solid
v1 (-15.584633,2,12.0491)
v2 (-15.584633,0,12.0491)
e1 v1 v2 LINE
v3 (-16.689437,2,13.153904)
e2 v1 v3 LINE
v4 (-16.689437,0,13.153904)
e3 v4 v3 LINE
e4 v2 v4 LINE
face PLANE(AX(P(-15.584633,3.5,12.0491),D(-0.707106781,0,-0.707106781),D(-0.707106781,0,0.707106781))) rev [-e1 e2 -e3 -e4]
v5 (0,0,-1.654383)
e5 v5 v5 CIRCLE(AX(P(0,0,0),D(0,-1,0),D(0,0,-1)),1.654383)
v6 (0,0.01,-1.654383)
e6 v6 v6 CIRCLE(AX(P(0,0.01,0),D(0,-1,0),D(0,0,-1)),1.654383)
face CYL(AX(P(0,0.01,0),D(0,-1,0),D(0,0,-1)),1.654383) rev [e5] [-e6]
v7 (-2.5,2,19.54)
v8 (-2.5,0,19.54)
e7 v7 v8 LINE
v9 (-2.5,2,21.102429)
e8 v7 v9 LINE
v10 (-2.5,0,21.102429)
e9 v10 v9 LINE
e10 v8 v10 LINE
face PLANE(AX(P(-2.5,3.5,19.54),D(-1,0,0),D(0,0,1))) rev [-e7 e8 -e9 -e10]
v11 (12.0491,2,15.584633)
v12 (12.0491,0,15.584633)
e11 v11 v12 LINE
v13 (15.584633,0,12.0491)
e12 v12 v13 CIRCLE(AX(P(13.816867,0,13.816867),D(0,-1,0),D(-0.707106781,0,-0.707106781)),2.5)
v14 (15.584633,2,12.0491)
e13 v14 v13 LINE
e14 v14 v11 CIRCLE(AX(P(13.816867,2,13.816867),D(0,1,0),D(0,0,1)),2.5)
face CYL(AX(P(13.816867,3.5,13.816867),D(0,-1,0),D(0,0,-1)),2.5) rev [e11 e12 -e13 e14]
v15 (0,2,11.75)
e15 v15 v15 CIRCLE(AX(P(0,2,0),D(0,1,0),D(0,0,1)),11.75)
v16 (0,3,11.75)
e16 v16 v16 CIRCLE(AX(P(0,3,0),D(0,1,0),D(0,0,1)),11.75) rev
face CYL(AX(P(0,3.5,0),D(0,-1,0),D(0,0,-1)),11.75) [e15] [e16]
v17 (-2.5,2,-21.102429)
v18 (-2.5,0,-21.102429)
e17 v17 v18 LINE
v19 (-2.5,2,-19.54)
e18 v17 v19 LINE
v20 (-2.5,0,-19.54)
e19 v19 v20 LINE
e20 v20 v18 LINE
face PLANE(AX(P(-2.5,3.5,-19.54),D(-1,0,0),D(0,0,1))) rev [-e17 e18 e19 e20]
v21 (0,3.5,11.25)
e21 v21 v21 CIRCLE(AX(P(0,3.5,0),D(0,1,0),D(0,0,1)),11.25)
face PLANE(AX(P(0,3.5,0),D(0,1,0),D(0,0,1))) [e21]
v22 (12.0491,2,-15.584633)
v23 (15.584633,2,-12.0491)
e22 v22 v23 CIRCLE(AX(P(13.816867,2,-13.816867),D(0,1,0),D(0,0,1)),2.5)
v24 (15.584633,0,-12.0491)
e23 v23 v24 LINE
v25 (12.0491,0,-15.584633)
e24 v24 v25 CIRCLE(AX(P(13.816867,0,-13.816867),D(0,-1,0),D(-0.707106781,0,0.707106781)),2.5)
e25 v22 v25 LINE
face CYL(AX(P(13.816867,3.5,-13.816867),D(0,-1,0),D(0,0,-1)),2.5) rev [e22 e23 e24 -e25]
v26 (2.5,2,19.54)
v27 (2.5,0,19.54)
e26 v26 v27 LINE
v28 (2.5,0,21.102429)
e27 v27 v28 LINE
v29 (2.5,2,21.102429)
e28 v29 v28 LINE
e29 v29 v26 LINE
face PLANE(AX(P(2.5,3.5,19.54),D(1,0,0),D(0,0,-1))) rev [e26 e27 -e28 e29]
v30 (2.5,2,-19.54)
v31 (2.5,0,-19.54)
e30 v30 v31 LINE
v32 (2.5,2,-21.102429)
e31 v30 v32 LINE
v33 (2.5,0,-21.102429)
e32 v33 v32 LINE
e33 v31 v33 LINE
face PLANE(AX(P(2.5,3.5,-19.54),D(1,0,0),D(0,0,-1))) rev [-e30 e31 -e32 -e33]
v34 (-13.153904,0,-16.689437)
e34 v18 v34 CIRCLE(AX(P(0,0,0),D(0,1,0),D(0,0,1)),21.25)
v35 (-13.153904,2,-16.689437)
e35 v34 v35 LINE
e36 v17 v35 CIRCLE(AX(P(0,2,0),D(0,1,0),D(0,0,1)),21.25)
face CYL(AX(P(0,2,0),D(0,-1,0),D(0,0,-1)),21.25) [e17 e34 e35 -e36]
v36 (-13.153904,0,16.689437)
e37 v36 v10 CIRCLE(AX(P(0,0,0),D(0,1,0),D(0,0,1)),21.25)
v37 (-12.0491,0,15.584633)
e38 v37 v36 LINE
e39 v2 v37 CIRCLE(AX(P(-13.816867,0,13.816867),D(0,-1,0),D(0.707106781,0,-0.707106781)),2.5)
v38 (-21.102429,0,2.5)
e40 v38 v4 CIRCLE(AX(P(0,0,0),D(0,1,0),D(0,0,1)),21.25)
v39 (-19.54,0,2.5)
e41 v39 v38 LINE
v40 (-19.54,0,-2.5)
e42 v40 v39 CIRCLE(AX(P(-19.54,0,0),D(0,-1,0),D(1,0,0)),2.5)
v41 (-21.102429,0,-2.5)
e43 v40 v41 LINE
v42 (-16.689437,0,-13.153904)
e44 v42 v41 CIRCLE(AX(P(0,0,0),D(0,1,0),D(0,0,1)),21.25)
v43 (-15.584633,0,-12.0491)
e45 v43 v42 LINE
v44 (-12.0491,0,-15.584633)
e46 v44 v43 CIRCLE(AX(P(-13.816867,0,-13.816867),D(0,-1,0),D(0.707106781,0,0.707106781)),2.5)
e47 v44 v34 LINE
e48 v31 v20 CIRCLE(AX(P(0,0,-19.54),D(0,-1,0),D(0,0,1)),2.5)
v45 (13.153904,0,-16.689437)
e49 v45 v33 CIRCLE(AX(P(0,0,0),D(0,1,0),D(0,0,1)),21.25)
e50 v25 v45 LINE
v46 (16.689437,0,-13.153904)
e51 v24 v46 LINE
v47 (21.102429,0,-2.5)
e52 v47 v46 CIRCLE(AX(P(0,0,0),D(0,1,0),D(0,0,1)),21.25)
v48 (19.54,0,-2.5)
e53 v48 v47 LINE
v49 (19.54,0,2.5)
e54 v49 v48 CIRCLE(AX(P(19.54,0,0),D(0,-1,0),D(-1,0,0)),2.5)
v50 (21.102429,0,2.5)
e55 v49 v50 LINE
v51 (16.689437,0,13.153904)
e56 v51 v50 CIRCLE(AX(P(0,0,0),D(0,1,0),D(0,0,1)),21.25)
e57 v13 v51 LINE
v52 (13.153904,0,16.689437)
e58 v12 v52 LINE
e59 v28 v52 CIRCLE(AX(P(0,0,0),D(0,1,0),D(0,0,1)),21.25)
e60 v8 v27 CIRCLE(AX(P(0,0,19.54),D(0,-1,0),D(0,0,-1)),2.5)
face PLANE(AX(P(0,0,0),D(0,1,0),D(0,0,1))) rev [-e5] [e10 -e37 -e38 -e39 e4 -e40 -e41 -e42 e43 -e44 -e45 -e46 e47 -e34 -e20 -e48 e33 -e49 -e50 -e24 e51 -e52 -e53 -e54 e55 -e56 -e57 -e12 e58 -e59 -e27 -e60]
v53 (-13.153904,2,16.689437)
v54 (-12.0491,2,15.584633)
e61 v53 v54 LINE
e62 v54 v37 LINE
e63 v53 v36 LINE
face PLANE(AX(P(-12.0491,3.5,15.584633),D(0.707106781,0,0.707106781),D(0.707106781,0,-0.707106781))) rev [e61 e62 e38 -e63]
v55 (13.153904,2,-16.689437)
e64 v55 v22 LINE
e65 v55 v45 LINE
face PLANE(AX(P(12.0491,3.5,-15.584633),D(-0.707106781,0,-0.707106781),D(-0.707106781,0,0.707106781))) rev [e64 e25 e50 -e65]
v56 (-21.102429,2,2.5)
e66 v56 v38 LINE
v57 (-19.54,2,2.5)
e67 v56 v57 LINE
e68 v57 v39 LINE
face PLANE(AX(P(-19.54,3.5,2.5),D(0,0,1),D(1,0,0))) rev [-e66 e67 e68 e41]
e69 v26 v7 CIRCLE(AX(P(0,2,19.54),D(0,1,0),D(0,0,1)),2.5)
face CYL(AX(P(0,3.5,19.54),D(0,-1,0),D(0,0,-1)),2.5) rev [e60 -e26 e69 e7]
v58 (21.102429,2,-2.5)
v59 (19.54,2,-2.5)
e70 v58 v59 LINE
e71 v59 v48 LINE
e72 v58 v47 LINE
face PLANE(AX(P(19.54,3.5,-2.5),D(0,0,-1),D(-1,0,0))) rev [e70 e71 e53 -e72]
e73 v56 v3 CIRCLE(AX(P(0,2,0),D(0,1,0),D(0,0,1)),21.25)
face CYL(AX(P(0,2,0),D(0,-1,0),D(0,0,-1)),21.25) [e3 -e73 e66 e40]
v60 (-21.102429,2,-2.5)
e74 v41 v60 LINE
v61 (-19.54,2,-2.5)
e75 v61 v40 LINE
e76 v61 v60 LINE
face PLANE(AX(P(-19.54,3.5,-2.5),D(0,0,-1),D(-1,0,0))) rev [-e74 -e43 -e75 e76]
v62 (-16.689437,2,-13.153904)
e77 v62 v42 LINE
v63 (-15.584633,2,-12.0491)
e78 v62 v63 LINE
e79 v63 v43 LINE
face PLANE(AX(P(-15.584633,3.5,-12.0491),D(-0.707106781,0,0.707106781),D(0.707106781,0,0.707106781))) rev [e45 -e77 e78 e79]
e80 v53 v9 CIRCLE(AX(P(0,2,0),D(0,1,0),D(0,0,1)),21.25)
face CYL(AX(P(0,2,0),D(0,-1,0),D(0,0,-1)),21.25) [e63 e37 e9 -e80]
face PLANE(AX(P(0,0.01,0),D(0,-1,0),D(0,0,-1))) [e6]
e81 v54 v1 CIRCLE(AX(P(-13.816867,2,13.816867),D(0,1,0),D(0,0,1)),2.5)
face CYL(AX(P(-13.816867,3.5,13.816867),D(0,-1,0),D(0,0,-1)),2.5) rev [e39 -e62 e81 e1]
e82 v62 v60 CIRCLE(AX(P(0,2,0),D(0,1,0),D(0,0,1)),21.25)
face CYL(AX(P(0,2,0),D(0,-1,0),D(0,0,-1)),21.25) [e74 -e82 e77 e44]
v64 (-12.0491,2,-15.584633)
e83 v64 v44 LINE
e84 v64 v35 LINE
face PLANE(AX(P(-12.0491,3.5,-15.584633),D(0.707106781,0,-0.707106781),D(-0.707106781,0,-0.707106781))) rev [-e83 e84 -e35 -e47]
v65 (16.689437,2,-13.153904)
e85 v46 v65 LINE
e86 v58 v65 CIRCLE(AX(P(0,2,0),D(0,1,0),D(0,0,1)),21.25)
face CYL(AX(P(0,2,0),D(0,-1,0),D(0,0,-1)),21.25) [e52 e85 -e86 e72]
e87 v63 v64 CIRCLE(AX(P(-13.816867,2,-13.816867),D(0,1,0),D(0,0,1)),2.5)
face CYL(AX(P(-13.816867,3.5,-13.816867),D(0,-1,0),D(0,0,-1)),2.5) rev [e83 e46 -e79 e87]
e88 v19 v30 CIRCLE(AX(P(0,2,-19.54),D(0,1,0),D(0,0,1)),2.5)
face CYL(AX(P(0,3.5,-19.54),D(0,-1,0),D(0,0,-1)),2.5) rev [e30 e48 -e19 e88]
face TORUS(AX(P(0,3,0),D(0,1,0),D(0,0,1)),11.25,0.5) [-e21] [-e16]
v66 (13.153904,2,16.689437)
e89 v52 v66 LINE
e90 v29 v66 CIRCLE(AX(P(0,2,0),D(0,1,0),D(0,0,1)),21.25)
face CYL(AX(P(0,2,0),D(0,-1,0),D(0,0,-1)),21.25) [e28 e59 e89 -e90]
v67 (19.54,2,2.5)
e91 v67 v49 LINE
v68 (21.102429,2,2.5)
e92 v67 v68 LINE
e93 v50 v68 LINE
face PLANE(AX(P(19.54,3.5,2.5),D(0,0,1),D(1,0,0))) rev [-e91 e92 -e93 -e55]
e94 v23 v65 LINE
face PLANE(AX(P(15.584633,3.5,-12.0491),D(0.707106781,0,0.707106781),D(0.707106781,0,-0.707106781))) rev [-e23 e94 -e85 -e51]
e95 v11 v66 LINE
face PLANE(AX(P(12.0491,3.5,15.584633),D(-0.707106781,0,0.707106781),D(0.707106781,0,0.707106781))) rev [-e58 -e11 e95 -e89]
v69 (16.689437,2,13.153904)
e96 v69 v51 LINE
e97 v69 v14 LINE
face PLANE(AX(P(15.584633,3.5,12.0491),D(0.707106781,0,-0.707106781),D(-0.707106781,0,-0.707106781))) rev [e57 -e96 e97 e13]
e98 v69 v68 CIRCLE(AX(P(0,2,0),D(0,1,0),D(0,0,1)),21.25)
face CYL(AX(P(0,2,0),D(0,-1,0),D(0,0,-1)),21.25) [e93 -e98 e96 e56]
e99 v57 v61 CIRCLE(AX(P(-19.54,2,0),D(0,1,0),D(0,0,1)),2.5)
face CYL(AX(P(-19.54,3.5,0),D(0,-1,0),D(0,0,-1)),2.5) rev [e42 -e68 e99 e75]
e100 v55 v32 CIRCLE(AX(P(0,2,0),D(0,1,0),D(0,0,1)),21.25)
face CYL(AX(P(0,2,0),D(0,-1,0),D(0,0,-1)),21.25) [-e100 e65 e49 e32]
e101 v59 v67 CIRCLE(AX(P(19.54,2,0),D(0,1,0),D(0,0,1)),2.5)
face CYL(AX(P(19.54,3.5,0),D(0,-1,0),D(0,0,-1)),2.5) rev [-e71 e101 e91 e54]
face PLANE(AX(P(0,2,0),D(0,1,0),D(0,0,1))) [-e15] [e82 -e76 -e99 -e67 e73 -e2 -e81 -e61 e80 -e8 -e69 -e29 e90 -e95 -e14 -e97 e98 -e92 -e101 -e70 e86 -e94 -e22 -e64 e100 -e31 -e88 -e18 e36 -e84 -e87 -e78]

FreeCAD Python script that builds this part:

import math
import FreeCAD as App
import Part
import Sketcher
from FreeCAD import Vector


def edges_at(feature, points):
    """Names of the edges that pass closest to the given points."""
    edges = feature.Shape.Edges
    near = lambda p: min(range(len(edges)), key=lambda i: edges[i].distToShape(Part.Vertex(*p))[0])
    return sorted({f"Edge{near(p) + 1}" for p in points})

doc = App.newDocument("Part")
params = doc.addObject("Spreadsheet::Sheet", "Params")
for row, (alias, value) in enumerate([
    ("sketch1_diameter", "42.5 mm"),
    ("pad1_length", "2 mm"),
    ("sketch2_diameter", "23.5 mm"),
    ("pad2_length", "1.5 mm"),
    ("fillet_radius", "0.5 mm"),
    ("sketch3_radius", "2.5 mm"),
    ("sketch3_height", "4.21 mm"),
    ("pocket2_length", "0.01 mm"),
], start=1):
    params.set(f"A{row}", alias)
    params.set(f"B{row}", "=" + value)
    params.setAlias(f"B{row}", alias)

body = doc.addObject("PartDesign::Body", "Body")

# Sketch on XZ plane
sketch1 = body.newObject("Sketcher::SketchObject", "Sketch")
sketch1.AttachmentSupport = (doc.getObject("XZ_Plane"), [""])
sketch1.MapMode = "FlatFace"
sketch1.addGeometry(Part.Circle(Vector(0, 0, 0), Vector(0, 0, 1), 21), False)
sketch1.addConstraint(Sketcher.Constraint("Coincident", 0, 3, -1, 1))
sketch1.addConstraint(Sketcher.Constraint("Diameter", 0, 42.5))
sketch1.setExpression("Constraints[1]", "Params.sketch1_diameter")
pad1 = body.newObject("PartDesign::Pad", "Pad")
pad1.Profile = sketch1
pad1.setExpression("Length", "Params.pad1_length")
pad1.Reversed = True

# Sketch on XZ plane
sketch2 = body.newObject("Sketcher::SketchObject", "Sketch001")
sketch2.AttachmentSupport = (doc.getObject("XZ_Plane"), [""])
sketch2.MapMode = "FlatFace"
sketch2.AttachmentOffset = App.Placement(Vector(0, 0, -2), App.Rotation())
sketch2.addGeometry(Part.Circle(Vector(0, 0, 0), Vector(0, 0, 1), 12), False)
sketch2.addConstraint(Sketcher.Constraint("Coincident", 0, 3, -1, 1))
sketch2.addConstraint(Sketcher.Constraint("Diameter", 0, 23.5))
sketch2.setExpression("Constraints[1]", "Params.sketch2_diameter")
pad2 = body.newObject("PartDesign::Pad", "Pad001")
pad2.Profile = sketch2
pad2.setExpression("Length", "Params.pad2_length")
pad2.Reversed = True
doc.recompute()

fillet = body.newObject("PartDesign::Fillet", "Fillet")
fillet.Base = (pad2, edges_at(pad2, [(-11.75, 3.5, 0)]))
fillet.setExpression("Radius", "Params.fillet_radius")

# Sketch on XZ plane
sketch3 = body.newObject("Sketcher::SketchObject", "Sketch002")
sketch3.AttachmentSupport = (doc.getObject("XZ_Plane"), [""])
sketch3.MapMode = "FlatFace"
sketch3.addGeometry(Part.LineSegment(Vector(-2.5, 23.8, 0), Vector(-2.5, 19.5, 0)), False)
sketch3.addGeometry(Part.ArcOfCircle(Part.Circle(Vector(0, 19.5, 0), Vector(0, 0, 1), 2.5), math.radians(180), math.radians(360)), False)
sketch3.addGeometry(Part.LineSegment(Vector(2.5, 19.5, 0), Vector(2.5, 23.8, 0)), False)
sketch3.addGeometry(Part.LineSegment(Vector(2.5, 23.8, 0), Vector(-2.5, 23.8, 0)), False)
sketch3.addConstraint(Sketcher.Constraint("Tangent", 0, 2, 1, 1))
sketch3.addConstraint(Sketcher.Constraint("Tangent", 1, 2, 2, 1))
sketch3.addConstraint(Sketcher.Constraint("Coincident", 2, 2, 3, 1))
sketch3.addConstraint(Sketcher.Constraint("Coincident", 3, 2, 0, 1))
sketch3.addConstraint(Sketcher.Constraint("Vertical", 0))
sketch3.addConstraint(Sketcher.Constraint("Vertical", 2))
sketch3.addConstraint(Sketcher.Constraint("Horizontal", 3))
sketch3.addConstraint(Sketcher.Constraint("PointOnObject", 1, 3, -2))
sketch3.addConstraint(Sketcher.Constraint("Radius", 1, 2.5))
sketch3.addConstraint(Sketcher.Constraint("DistanceY", 0, 2, 0, 1, 4.21))
sketch3.addConstraint(Sketcher.Constraint("DistanceY", -1, 1, 1, 3, 19.54))
sketch3.setExpression("Constraints[8]", "Params.sketch3_radius")
sketch3.setExpression("Constraints[9]", "Params.sketch3_height")
pocket1 = body.newObject("PartDesign::Pocket", "Pocket")
pocket1.Profile = sketch3
pocket1.Type = "ThroughAll"

# Sketch on XZ plane
sketch4 = body.newObject("Sketcher::SketchObject", "Sketch003")
sketch4.AttachmentSupport = (doc.getObject("XZ_Plane"), [""])
sketch4.MapMode = "FlatFace"
sketch4.addGeometry(Part.Circle(Vector(0, 0, 0), Vector(0, 0, 1), 1.7), False)
sketch4.addConstraint(Sketcher.Constraint("Coincident", 0, 3, -1, 1))
sketch4.addConstraint(Sketcher.Constraint("Diameter", 0, 3.308766))
pocket2 = body.newObject("PartDesign::Pocket", "Pocket001")
pocket2.Profile = sketch4
pocket2.setExpression("Length", "Params.pocket2_length")
doc.recompute()

polarpattern = body.newObject("PartDesign::PolarPattern", "PolarPattern")
polarpattern.Originals = [pocket1]
polarpattern.Axis = (doc.getObject("Y_Axis"), [""])
polarpattern.Angle = 360
polarpattern.Occurrences = 8
body.Tip = polarpattern

doc.recompute()
